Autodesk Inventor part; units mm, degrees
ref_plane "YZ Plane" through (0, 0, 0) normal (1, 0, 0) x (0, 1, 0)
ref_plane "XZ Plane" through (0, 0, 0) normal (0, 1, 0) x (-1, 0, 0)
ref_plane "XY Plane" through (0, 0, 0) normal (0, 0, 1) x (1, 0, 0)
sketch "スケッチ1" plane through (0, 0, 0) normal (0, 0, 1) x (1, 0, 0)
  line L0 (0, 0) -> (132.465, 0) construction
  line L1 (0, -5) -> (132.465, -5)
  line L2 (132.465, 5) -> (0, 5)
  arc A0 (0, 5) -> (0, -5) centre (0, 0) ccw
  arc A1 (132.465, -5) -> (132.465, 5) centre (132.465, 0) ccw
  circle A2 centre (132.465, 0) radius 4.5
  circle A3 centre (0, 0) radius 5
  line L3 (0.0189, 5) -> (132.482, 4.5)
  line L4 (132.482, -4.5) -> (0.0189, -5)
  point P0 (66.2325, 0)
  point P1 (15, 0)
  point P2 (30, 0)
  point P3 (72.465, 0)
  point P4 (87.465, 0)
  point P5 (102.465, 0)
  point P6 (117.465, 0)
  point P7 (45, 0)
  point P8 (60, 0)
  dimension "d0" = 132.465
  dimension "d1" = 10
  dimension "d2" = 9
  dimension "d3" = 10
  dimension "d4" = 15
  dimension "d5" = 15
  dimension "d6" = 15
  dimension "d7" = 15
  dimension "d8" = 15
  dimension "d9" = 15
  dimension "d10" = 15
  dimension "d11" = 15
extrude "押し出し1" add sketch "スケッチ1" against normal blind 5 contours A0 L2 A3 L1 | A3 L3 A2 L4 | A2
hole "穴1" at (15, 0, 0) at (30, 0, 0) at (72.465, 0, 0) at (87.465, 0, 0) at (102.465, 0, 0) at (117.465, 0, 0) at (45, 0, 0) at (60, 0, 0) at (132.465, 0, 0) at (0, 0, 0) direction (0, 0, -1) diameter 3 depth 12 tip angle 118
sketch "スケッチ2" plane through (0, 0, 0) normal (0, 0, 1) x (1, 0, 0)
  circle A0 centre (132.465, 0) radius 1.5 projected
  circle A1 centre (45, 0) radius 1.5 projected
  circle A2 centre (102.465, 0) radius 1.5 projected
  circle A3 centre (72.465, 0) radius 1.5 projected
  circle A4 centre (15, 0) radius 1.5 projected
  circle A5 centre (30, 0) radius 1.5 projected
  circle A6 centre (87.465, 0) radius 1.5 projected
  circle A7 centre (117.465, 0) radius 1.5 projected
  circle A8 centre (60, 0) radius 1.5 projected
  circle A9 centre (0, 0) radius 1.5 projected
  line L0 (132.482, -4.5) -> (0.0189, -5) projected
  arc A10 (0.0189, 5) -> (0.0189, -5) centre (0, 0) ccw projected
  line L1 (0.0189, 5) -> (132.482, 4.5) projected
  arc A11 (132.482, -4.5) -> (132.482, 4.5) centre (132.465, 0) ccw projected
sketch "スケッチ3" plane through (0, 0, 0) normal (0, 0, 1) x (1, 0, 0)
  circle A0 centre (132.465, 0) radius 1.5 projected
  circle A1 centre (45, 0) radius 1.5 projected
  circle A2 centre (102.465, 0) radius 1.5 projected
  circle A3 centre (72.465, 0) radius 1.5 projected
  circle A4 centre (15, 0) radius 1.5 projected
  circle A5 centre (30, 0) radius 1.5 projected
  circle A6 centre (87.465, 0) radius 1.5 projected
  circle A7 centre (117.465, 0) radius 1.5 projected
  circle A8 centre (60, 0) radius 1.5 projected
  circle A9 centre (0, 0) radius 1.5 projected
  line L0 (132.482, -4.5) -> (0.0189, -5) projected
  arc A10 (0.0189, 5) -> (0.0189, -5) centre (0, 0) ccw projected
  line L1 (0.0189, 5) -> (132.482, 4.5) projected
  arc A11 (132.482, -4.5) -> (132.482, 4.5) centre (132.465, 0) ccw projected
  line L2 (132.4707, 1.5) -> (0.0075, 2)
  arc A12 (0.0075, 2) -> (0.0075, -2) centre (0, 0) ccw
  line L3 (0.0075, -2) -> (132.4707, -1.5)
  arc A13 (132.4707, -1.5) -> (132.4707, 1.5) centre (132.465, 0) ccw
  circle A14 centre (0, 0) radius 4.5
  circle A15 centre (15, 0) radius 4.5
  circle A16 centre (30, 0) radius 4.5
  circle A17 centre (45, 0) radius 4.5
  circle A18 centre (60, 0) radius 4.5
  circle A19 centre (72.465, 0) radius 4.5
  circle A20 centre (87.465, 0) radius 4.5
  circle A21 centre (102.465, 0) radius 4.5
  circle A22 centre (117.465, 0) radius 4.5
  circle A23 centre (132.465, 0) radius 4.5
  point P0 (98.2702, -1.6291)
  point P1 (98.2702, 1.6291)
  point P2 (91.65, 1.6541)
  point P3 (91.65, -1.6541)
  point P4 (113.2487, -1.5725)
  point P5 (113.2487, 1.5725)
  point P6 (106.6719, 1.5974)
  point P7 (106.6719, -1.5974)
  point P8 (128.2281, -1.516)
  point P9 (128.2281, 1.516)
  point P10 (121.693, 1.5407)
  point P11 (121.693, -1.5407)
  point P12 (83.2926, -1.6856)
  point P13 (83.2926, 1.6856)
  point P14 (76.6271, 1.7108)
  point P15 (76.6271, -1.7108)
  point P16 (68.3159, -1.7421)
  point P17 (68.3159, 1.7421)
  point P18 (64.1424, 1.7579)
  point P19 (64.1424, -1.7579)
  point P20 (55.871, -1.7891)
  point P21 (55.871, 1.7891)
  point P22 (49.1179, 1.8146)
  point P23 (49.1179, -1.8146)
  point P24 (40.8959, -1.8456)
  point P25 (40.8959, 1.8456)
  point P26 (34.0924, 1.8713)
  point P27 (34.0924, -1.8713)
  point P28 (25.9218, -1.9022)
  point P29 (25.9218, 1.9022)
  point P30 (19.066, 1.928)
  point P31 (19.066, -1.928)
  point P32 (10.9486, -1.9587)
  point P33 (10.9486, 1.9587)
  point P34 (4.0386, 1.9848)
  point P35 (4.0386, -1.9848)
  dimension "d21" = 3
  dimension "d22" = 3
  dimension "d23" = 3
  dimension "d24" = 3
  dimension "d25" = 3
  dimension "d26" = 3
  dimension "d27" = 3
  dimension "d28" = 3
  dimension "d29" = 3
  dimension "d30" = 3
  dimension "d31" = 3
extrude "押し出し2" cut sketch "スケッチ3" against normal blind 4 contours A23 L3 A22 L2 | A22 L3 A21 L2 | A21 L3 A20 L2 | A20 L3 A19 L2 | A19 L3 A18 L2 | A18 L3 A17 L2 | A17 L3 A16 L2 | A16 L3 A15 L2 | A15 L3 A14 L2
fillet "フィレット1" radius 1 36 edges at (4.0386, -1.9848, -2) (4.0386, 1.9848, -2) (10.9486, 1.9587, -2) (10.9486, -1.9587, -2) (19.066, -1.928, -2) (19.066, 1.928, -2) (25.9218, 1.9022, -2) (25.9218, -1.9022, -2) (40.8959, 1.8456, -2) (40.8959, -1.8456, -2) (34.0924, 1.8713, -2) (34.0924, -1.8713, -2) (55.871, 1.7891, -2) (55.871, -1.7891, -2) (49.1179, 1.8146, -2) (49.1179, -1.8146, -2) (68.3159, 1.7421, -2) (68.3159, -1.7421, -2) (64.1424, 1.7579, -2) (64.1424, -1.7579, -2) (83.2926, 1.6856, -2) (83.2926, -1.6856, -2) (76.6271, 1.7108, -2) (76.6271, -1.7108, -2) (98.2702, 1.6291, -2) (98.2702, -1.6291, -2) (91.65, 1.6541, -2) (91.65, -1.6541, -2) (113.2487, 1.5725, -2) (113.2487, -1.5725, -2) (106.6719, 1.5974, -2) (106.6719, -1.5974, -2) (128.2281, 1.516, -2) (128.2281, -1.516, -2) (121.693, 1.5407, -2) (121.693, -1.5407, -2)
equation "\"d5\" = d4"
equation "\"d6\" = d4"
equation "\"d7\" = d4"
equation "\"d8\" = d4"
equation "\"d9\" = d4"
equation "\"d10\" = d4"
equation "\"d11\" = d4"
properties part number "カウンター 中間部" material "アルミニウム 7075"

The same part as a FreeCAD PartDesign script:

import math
import FreeCAD as App
import Part
import Sketcher
Q = App.Units.Quantity


def edges_at(feature, points):
    """Names of the edges that pass closest to the given points."""
    edges = feature.Shape.Edges
    near = lambda p: min(range(len(edges)), key=lambda i: edges[i].distToShape(Part.Vertex(*p))[0])
    return sorted({f"Edge{near(p) + 1}" for p in points})

doc = App.newDocument("Part")
body = doc.addObject("PartDesign::Body", "Body")

# Sketch on XY plane
sketch1 = doc.addObject("Sketcher::SketchObject", "Sketch")
body.addObject(sketch1)
sketch1.AttachmentSupport = (doc.XY_Plane, [""])
sketch1.MapMode = "FlatFace"
sketch1.addGeometry(Part.ArcOfCircle(Part.Circle(App.Vector(0, 0, 0), App.Vector(0, 0, 1), 5), math.radians(90), math.radians(270)), False)
sketch1.addGeometry(Part.LineSegment(App.Vector(0, -5, 0), App.Vector(0.019, -5, 0)), False)
sketch1.addGeometry(Part.LineSegment(App.Vector(0.019, -5, 0), App.Vector(132.482, -4.5, 0)), False)
sketch1.addGeometry(Part.ArcOfCircle(Part.Circle(App.Vector(132.465, 0, 0), App.Vector(0, 0, 1), 4.5), math.radians(-90), math.radians(90)), False)
sketch1.addGeometry(Part.LineSegment(App.Vector(132.482, 4.5, 0), App.Vector(0.019, 5, 0)), False)
sketch1.addGeometry(Part.LineSegment(App.Vector(0.019, 5, 0), App.Vector(0, 5, 0)), False)
sketch1.addConstraint(Sketcher.Constraint("Tangent", 0, 2, 1, 1))
sketch1.addConstraint(Sketcher.Constraint("Coincident", 1, 2, 2, 1))
sketch1.addConstraint(Sketcher.Constraint("Tangent", 2, 2, 3, 1))
sketch1.addConstraint(Sketcher.Constraint("Tangent", 3, 2, 4, 1))
sketch1.addConstraint(Sketcher.Constraint("Coincident", 4, 2, 5, 1))
sketch1.addConstraint(Sketcher.Constraint("Tangent", 5, 2, 0, 1))
sketch1.addConstraint(Sketcher.Constraint("Horizontal", 1))
sketch1.addConstraint(Sketcher.Constraint("Horizontal", 5))
sketch1.addConstraint(Sketcher.Constraint("Coincident", 0, 3, -1, 1))
sketch1.addConstraint(Sketcher.Constraint("Symmetric", 2, 2, 3, 2, -1))
sketch1.addConstraint(Sketcher.Constraint("Radius", 0, Q("5 mm")))
sketch1.addConstraint(Sketcher.Constraint("Radius", 3, Q("4.5 mm")))
sketch1.addConstraint(Sketcher.Constraint("DistanceX", -1, 1, 3, 3, Q("132.465 mm")))
sketch1.addConstraint(Sketcher.Constraint("DistanceX", 1, 1, 1, 2, Q("0.019 mm")))
pad1 = doc.addObject("PartDesign::Pad", "Pad")
body.addObject(pad1)
pad1.Profile = sketch1
pad1.Length = 5
pad1.Reversed = True

# Sketch on XY plane
sketch2 = doc.addObject("Sketcher::SketchObject", "Sketch001")
body.addObject(sketch2)
sketch2.AttachmentSupport = (doc.XY_Plane, [""])
sketch2.MapMode = "FlatFace"
sketch2.addGeometry(Part.Circle(App.Vector(15, 0, 0), App.Vector(0, 0, 1), 1.5), False)
sketch2.addGeometry(Part.Circle(App.Vector(30, 0, 0), App.Vector(0, 0, 1), 1.5), False)
sketch2.addGeometry(Part.Circle(App.Vector(72.5, 0, 0), App.Vector(0, 0, 1), 1.5), False)
sketch2.addGeometry(Part.Circle(App.Vector(87.5, 0, 0), App.Vector(0, 0, 1), 1.5), False)
sketch2.addGeometry(Part.Circle(App.Vector(102.5, 0, 0), App.Vector(0, 0, 1), 1.5), False)
sketch2.addGeometry(Part.Circle(App.Vector(117.5, 0, 0), App.Vector(0, 0, 1), 1.5), False)
sketch2.addGeometry(Part.Circle(App.Vector(45, 0, 0), App.Vector(0, 0, 1), 1.5), False)
sketch2.addGeometry(Part.Circle(App.Vector(60, 0, 0), App.Vector(0, 0, 1), 1.5), False)
sketch2.addGeometry(Part.Circle(App.Vector(132.5, 0, 0), App.Vector(0, 0, 1), 1.5), False)
sketch2.addGeometry(Part.Circle(App.Vector(0, 0, 0), App.Vector(0, 0, 1), 1.5), False)
sketch2.addConstraint(Sketcher.Constraint("Coincident", 9, 3, -1, 1))
sketch2.addConstraint(Sketcher.Constraint("Equal", 0, 1))
sketch2.addConstraint(Sketcher.Constraint("Equal", 1, 2))
sketch2.addConstraint(Sketcher.Constraint("Equal", 2, 3))
sketch2.addConstraint(Sketcher.Constraint("Equal", 3, 4))
sketch2.addConstraint(Sketcher.Constraint("Equal", 4, 5))
sketch2.addConstraint(Sketcher.Constraint("Equal", 5, 6))
sketch2.addConstraint(Sketcher.Constraint("Equal", 6, 7))
sketch2.addConstraint(Sketcher.Constraint("Equal", 7, 8))
sketch2.addConstraint(Sketcher.Constraint("Equal", 8, 9))
sketch2.addConstraint(Sketcher.Constraint("PointOnObject", 0, 3, -1))
sketch2.addConstraint(Sketcher.Constraint("PointOnObject", 1, 3, -1))
sketch2.addConstraint(Sketcher.Constraint("PointOnObject", 2, 3, -1))
sketch2.addConstraint(Sketcher.Constraint("PointOnObject", 3, 3, -1))
sketch2.addConstraint(Sketcher.Constraint("PointOnObject", 4, 3, -1))
sketch2.addConstraint(Sketcher.Constraint("PointOnObject", 5, 3, -1))
sketch2.addConstraint(Sketcher.Constraint("PointOnObject", 6, 3, -1))
sketch2.addConstraint(Sketcher.Constraint("PointOnObject", 7, 3, -1))
sketch2.addConstraint(Sketcher.Constraint("PointOnObject", 8, 3, -1))
sketch2.addConstraint(Sketcher.Constraint("Diameter", 0, Q("3 mm")))
sketch2.addConstraint(Sketcher.Constraint("DistanceX", -1, 1, 0, 3, Q("15 mm")))
sketch2.addConstraint(Sketcher.Constraint("DistanceX", -1, 1, 1, 3, Q("30 mm")))
sketch2.addConstraint(Sketcher.Constraint("DistanceX", -1, 1, 6, 3, Q("45 mm")))
sketch2.addConstraint(Sketcher.Constraint("DistanceX", -1, 1, 7, 3, Q("60 mm")))
sketch2.addConstraint(Sketcher.Constraint("DistanceX", 2, 3, 3, 3, Q("15 mm")))
sketch2.addConstraint(Sketcher.Constraint("DistanceX", 3, 3, 4, 3, Q("15 mm")))
sketch2.addConstraint(Sketcher.Constraint("DistanceX", 4, 3, 5, 3, Q("15 mm")))
sketch2.addConstraint(Sketcher.Constraint("DistanceX", 5, 3, 8, 3, Q("15 mm")))
sketch2.addConstraint(Sketcher.Constraint("DistanceX", -1, 1, 2, 3, Q("72.465 mm")))
doc.recompute()
hole = doc.addObject("PartDesign::Hole", "Hole")
body.addObject(hole)
hole.Profile = sketch2
hole.ThreadType = "None"
hole.Diameter = 3
hole.DepthType = "Dimension"
hole.Depth = 12
hole.DrillPoint = "Angled"
hole.DrillPointAngle = 118

# Sketch on XY plane
sketch3 = doc.addObject("Sketcher::SketchObject", "Sketch002")
body.addObject(sketch3)
sketch3.AttachmentSupport = (doc.XY_Plane, [""])
sketch3.MapMode = "FlatFace"
sketch3.addGeometry(Part.ArcOfCircle(Part.Circle(App.Vector(132.5, 0, 0), App.Vector(0, 0, 1), 4.5), math.radians(160), math.radians(200)), False)
sketch3.addGeometry(Part.LineSegment(App.Vector(128.2, 1.5, 0), App.Vector(121.7, 1.5, 0)), False)
sketch3.addGeometry(Part.ArcOfCircle(Part.Circle(App.Vector(117.5, 0, 0), App.Vector(0, 0, 1), 4.5), math.radians(-20), math.radians(20)), False)
sketch3.addGeometry(Part.LineSegment(App.Vector(121.7, -1.5, 0), App.Vector(128.2, -1.5, 0)), False)
sketch3.addGeometry(Part.ArcOfCircle(Part.Circle(App.Vector(117.5, 0, 0), App.Vector(0, 0, 1), 4.5), math.radians(160), math.radians(200)), False)
sketch3.addGeometry(Part.LineSegment(App.Vector(113.2, 1.6, 0), App.Vector(106.7, 1.6, 0)), False)
sketch3.addGeometry(Part.ArcOfCircle(Part.Circle(App.Vector(102.5, 0, 0), App.Vector(0, 0, 1), 4.5), math.radians(-21), math.radians(21)), False)
sketch3.addGeometry(Part.LineSegment(App.Vector(106.7, -1.6, 0), App.Vector(113.2, -1.6, 0)), False)
sketch3.addGeometry(Part.ArcOfCircle(Part.Circle(App.Vector(102.5, 0, 0), App.Vector(0, 0, 1), 4.5), math.radians(159), math.radians(201)), False)
sketch3.addGeometry(Part.LineSegment(App.Vector(98.3, 1.6, 0), App.Vector(91.6, 1.7, 0)), False)
sketch3.addGeometry(Part.ArcOfCircle(Part.Circle(App.Vector(87.5, 0, 0), App.Vector(0, 0, 1), 4.5), math.radians(-22), math.radians(22)), False)
sketch3.addGeometry(Part.LineSegment(App.Vector(91.6, -1.7, 0), App.Vector(98.3, -1.6, 0)), False)
sketch3.addGeometry(Part.ArcOfCircle(Part.Circle(App.Vector(87.5, 0, 0), App.Vector(0, 0, 1), 4.5), math.radians(158), math.radians(202)), False)
sketch3.addGeometry(Part.LineSegment(App.Vector(83.3, 1.7, 0), App.Vector(76.6, 1.7, 0)), False)
sketch3.addGeometry(Part.ArcOfCircle(Part.Circle(App.Vector(72.5, 0, 0), App.Vector(0, 0, 1), 4.5), math.radians(-22), math.radians(22)), False)
sketch3.addGeometry(Part.LineSegment(App.Vector(76.6, -1.7, 0), App.Vector(83.3, -1.7, 0)), False)
sketch3.addGeometry(Part.ArcOfCircle(Part.Circle(App.Vector(72.5, 0, 0), App.Vector(0, 0, 1), 4.5), math.radians(157), math.radians(203)), False)
sketch3.addGeometry(Part.LineSegment(App.Vector(68.3, 1.7, 0), App.Vector(64.1, 1.8, 0)), False)
sketch3.addGeometry(Part.ArcOfCircle(Part.Circle(App.Vector(60, 0, 0), App.Vector(0, 0, 1), 4.5), math.radians(-23), math.radians(23)), False)
sketch3.addGeometry(Part.LineSegment(App.Vector(64.1, -1.8, 0), App.Vector(68.3, -1.7, 0)), False)
sketch3.addGeometry(Part.ArcOfCircle(Part.Circle(App.Vector(60, 0, 0), App.Vector(0, 0, 1), 4.5), math.radians(157), math.radians(203)), False)
sketch3.addGeometry(Part.LineSegment(App.Vector(55.9, 1.8, 0), App.Vector(49.1, 1.8, 0)), False)
sketch3.addGeometry(Part.ArcOfCircle(Part.Circle(App.Vector(45, 0, 0), App.Vector(0, 0, 1), 4.5), math.radians(-24), math.radians(24)), False)
sketch3.addGeometry(Part.LineSegment(App.Vector(49.1, -1.8, 0), App.Vector(55.9, -1.8, 0)), False)
sketch3.addGeometry(Part.ArcOfCircle(Part.Circle(App.Vector(45, 0, 0), App.Vector(0, 0, 1), 4.5), math.radians(156), math.radians(204)), False)
sketch3.addGeometry(Part.LineSegment(App.Vector(40.9, 1.8, 0), App.Vector(34.1, 1.9, 0)), False)
sketch3.addGeometry(Part.ArcOfCircle(Part.Circle(App.Vector(30, 0, 0), App.Vector(0, 0, 1), 4.5), math.radians(-25), math.radians(25)), False)
sketch3.addGeometry(Part.LineSegment(App.Vector(34.1, -1.9, 0), App.Vector(40.9, -1.8, 0)), False)
sketch3.addGeometry(Part.ArcOfCircle(Part.Circle(App.Vector(30, 0, 0), App.Vector(0, 0, 1), 4.5), math.radians(155), math.radians(205)), False)
sketch3.addGeometry(Part.LineSegment(App.Vector(25.9, 1.9, 0), App.Vector(19.1, 1.9, 0)), False)
sketch3.addGeometry(Part.ArcOfCircle(Part.Circle(App.Vector(15, 0, 0), App.Vector(0, 0, 1), 4.5), math.radians(-25), math.radians(25)), False)
sketch3.addGeometry(Part.LineSegment(App.Vector(19.1, -1.9, 0), App.Vector(25.9, -1.9, 0)), False)
sketch3.addGeometry(Part.ArcOfCircle(Part.Circle(App.Vector(15, 0, 0), App.Vector(0, 0, 1), 4.5), math.radians(154), math.radians(206)), False)
sketch3.addGeometry(Part.LineSegment(App.Vector(10.9, 2, 0), App.Vector(4, 2, 0)), False)
sketch3.addGeometry(Part.ArcOfCircle(Part.Circle(App.Vector(0, 0, 0), App.Vector(0, 0, 1), 4.5), math.radians(-26), math.radians(26)), False)
sketch3.addGeometry(Part.LineSegment(App.Vector(4, -2, 0), App.Vector(10.9, -2, 0)), False)
sketch3.addConstraint(Sketcher.Constraint("Coincident", 0, 1, 1, 1))
sketch3.addConstraint(Sketcher.Constraint("Coincident", 1, 2, 2, 2))
sketch3.addConstraint(Sketcher.Constraint("Coincident", 2, 1, 3, 1))
sketch3.addConstraint(Sketcher.Constraint("Coincident", 3, 2, 0, 2))
sketch3.addConstraint(Sketcher.Constraint("Coincident", 4, 1, 5, 1))
sketch3.addConstraint(Sketcher.Constraint("Coincident", 5, 2, 6, 2))
sketch3.addConstraint(Sketcher.Constraint("Coincident", 6, 1, 7, 1))
sketch3.addConstraint(Sketcher.Constraint("Coincident", 7, 2, 4, 2))
sketch3.addConstraint(Sketcher.Constraint("Coincident", 8, 1, 9, 1))
sketch3.addConstraint(Sketcher.Constraint("Coincident", 9, 2, 10, 2))
sketch3.addConstraint(Sketcher.Constraint("Coincident", 10, 1, 11, 1))
sketch3.addConstraint(Sketcher.Constraint("Coincident", 11, 2, 8, 2))
sketch3.addConstraint(Sketcher.Constraint("Coincident", 12, 1, 13, 1))
sketch3.addConstraint(Sketcher.Constraint("Coincident", 13, 2, 14, 2))
sketch3.addConstraint(Sketcher.Constraint("Coincident", 14, 1, 15, 1))
sketch3.addConstraint(Sketcher.Constraint("Coincident", 15, 2, 12, 2))
sketch3.addConstraint(Sketcher.Constraint("Coincident", 16, 1, 17, 1))
sketch3.addConstraint(Sketcher.Constraint("Coincident", 17, 2, 18, 2))
sketch3.addConstraint(Sketcher.Constraint("Coincident", 18, 1, 19, 1))
sketch3.addConstraint(Sketcher.Constraint("Coincident", 19, 2, 16, 2))
sketch3.addConstraint(Sketcher.Constraint("Coincident", 20, 1, 21, 1))
sketch3.addConstraint(Sketcher.Constraint("Coincident", 21, 2, 22, 2))
sketch3.addConstraint(Sketcher.Constraint("Coincident", 22, 1, 23, 1))
sketch3.addConstraint(Sketcher.Constraint("Coincident", 23, 2, 20, 2))
sketch3.addConstraint(Sketcher.Constraint("Coincident", 24, 1, 25, 1))
sketch3.addConstraint(Sketcher.Constraint("Coincident", 25, 2, 26, 2))
sketch3.addConstraint(Sketcher.Constraint("Coincident", 26, 1, 27, 1))
sketch3.addConstraint(Sketcher.Constraint("Coincident", 27, 2, 24, 2))
sketch3.addConstraint(Sketcher.Constraint("Coincident", 28, 1, 29, 1))
sketch3.addConstraint(Sketcher.Constraint("Coincident", 29, 2, 30, 2))
sketch3.addConstraint(Sketcher.Constraint("Coincident", 30, 1, 31, 1))
sketch3.addConstraint(Sketcher.Constraint("Coincident", 31, 2, 28, 2))
sketch3.addConstraint(Sketcher.Constraint("Coincident", 32, 1, 33, 1))
sketch3.addConstraint(Sketcher.Constraint("Coincident", 33, 2, 34, 2))
sketch3.addConstraint(Sketcher.Constraint("Coincident", 34, 1, 35, 1))
sketch3.addConstraint(Sketcher.Constraint("Coincident", 35, 2, 32, 2))
sketch3.addConstraint(Sketcher.Constraint("Coincident", 34, 3, -1, 1))
sketch3.addConstraint(Sketcher.Constraint("Coincident", 4, 3, 2, 3))
sketch3.addConstraint(Sketcher.Constraint("Coincident", 8, 3, 6, 3))
sketch3.addConstraint(Sketcher.Constraint("Coincident", 12, 3, 10, 3))
sketch3.addConstraint(Sketcher.Constraint("Coincident", 16, 3, 14, 3))
sketch3.addConstraint(Sketcher.Constraint("Coincident", 20, 3, 18, 3))
sketch3.addConstraint(Sketcher.Constraint("Coincident", 24, 3, 22, 3))
sketch3.addConstraint(Sketcher.Constraint("Coincident", 28, 3, 26, 3))
sketch3.addConstraint(Sketcher.Constraint("Coincident", 32, 3, 30, 3))
sketch3.addConstraint(Sketcher.Constraint("Equal", 0, 2))
sketch3.addConstraint(Sketcher.Constraint("Equal", 2, 4))
sketch3.addConstraint(Sketcher.Constraint("Equal", 4, 6))
sketch3.addConstraint(Sketcher.Constraint("Equal", 6, 8))
sketch3.addConstraint(Sketcher.Constraint("Equal", 8, 10))
sketch3.addConstraint(Sketcher.Constraint("Equal", 10, 12))
sketch3.addConstraint(Sketcher.Constraint("Equal", 12, 14))
sketch3.addConstraint(Sketcher.Constraint("Equal", 14, 16))
sketch3.addConstraint(Sketcher.Constraint("Equal", 16, 18))
sketch3.addConstraint(Sketcher.Constraint("Equal", 18, 20))
sketch3.addConstraint(Sketcher.Constraint("Equal", 20, 22))
sketch3.addConstraint(Sketcher.Constraint("Equal", 22, 24))
sketch3.addConstraint(Sketcher.Constraint("Equal", 24, 26))
sketch3.addConstraint(Sketcher.Constraint("Equal", 26, 28))
sketch3.addConstraint(Sketcher.Constraint("Equal", 28, 30))
sketch3.addConstraint(Sketcher.Constraint("Equal", 30, 32))
sketch3.addConstraint(Sketcher.Constraint("Equal", 32, 34))
sketch3.addConstraint(Sketcher.Constraint("Symmetric", 1, 2, 2, 1, -1))
sketch3.addConstraint(Sketcher.Constraint("Symmetric", 0, 1, 3, 2, -1))
sketch3.addConstraint(Sketcher.Constraint("Symmetric", 5, 2, 6, 1, -1))
sketch3.addConstraint(Sketcher.Constraint("Symmetric", 9, 2, 10, 1, -1))
sketch3.addConstraint(Sketcher.Constraint("Symmetric", 13, 2, 14, 1, -1))
sketch3.addConstraint(Sketcher.Constraint("Symmetric", 17, 2, 18, 1, -1))
sketch3.addConstraint(Sketcher.Constraint("Symmetric", 21, 2, 22, 1, -1))
sketch3.addConstraint(Sketcher.Constraint("Symmetric", 25, 2, 26, 1, -1))
sketch3.addConstraint(Sketcher.Constraint("Symmetric", 29, 2, 30, 1, -1))
sketch3.addConstraint(Sketcher.Constraint("Parallel", 1, 5))
sketch3.addConstraint(Sketcher.Constraint("Parallel", 3, 7))
sketch3.addConstraint(Sketcher.Constraint("Parallel", 5, 9))
sketch3.addConstraint(Sketcher.Constraint("Parallel", 7, 11))
sketch3.addConstraint(Sketcher.Constraint("Parallel", 9, 13))
sketch3.addConstraint(Sketcher.Constraint("Parallel", 11, 15))
sketch3.addConstraint(Sketcher.Constraint("Parallel", 13, 17))
sketch3.addConstraint(Sketcher.Constraint("Parallel", 15, 19))
sketch3.addConstraint(Sketcher.Constraint("Parallel", 17, 21))
sketch3.addConstraint(Sketcher.Constraint("Parallel", 19, 23))
sketch3.addConstraint(Sketcher.Constraint("Parallel", 21, 25))
sketch3.addConstraint(Sketcher.Constraint("Parallel", 23, 27))
sketch3.addConstraint(Sketcher.Constraint("Parallel", 25, 29))
sketch3.addConstraint(Sketcher.Constraint("Parallel", 27, 31))
sketch3.addConstraint(Sketcher.Constraint("Parallel", 29, 33))
sketch3.addConstraint(Sketcher.Constraint("Parallel", 31, 35))
sketch3.addConstraint(Sketcher.Constraint("Vertical", 33, 2, 34, 1))
sketch3.addConstraint(Sketcher.Constraint("Radius", 0, Q("4.5 mm")))
sketch3.addConstraint(Sketcher.Constraint("DistanceX", -1, 1, 18, 3, Q("60 mm")))
sketch3.addConstraint(Sketcher.Constraint("DistanceX", -1, 1, 22, 3, Q("45 mm")))
sketch3.addConstraint(Sketcher.Constraint("DistanceX", -1, 1, 26, 3, Q("30 mm")))
sketch3.addConstraint(Sketcher.Constraint("DistanceX", -1, 1, 30, 3, Q("15 mm")))
sketch3.addConstraint(Sketcher.Constraint("DistanceX", 2, 3, 0, 3, Q("15 mm")))
sketch3.addConstraint(Sketcher.Constraint("DistanceX", 6, 3, 2, 3, Q("15 mm")))
sketch3.addConstraint(Sketcher.Constraint("DistanceX", 10, 3, 6, 3, Q("15 mm")))
sketch3.addConstraint(Sketcher.Constraint("DistanceX", 14, 3, 10, 3, Q("15 mm")))
sketch3.addConstraint(Sketcher.Constraint("DistanceY", 18, 1, 16, 1, Q("3.5 mm")))
sketch3.addConstraint(Sketcher.Constraint("Distance", 33, Q("6.91 mm")))
sketch3.addConstraint(Sketcher.Constraint("DistanceX", -1, 1, 9, 2, Q("91.65 mm")))
sketch3.addConstraint(Sketcher.Constraint("DistanceY", 6, 1, 4, 1, Q("3.17 mm")))
sketch3.addConstraint(Sketcher.Constraint("Distance", 1, Q("6.535 mm")))
sketch3.addConstraint(Sketcher.Constraint("Distance", 21, Q("6.753 mm")))
sketch3.addConstraint(Sketcher.Constraint("DistanceX", -1, 1, 0, 3, Q("132.465 mm")))
sketch3.addConstraint(Sketcher.Constraint("DistanceX", -1, 1, 0, 1, Q("128.228 mm")))
sketch3.addConstraint(Sketcher.Constraint("DistanceX", -1, 1, 13, 2, Q("76.627 mm")))
sketch3.addConstraint(Sketcher.Constraint("DistanceX", -1, 1, 24, 1, Q("40.896 mm")))
sketch3.addConstraint(Sketcher.Constraint("DistanceX", -1, 1, 29, 2, Q("19.066 mm")))
pocket1 = doc.addObject("PartDesign::Pocket", "Pocket")
body.addObject(pocket1)
pocket1.Profile = sketch3
pocket1.Length = 4
doc.recompute()

fillet = doc.addObject("PartDesign::Fillet", "Fillet")
body.addObject(fillet)
fillet.Base = (pocket1, edges_at(pocket1, [
    (4.039, -1.985, -2),
    (4.039, 1.985, -2),
    (10.949, 1.959, -2),
    (10.949, -1.959, -2),
    (19.066, -1.928, -2),
    (19.066, 1.928, -2),
    (25.922, 1.902, -2),
    (25.922, -1.902, -2),
    (40.896, 1.846, -2),
    (40.896, -1.846, -2),
    (34.092, 1.871, -2),
    (34.092, -1.871, -2),
    (55.871, 1.789, -2),
    (55.871, -1.789, -2),
    (49.118, 1.815, -2),
    (49.118, -1.815, -2),
    (68.316, 1.742, -2),
    (68.316, -1.742, -2),
    (64.142, 1.758, -2),
    (64.142, -1.758, -2),
    (83.293, 1.686, -2),
    (83.293, -1.686, -2),
    (76.627, 1.711, -2),
    (76.627, -1.711, -2),
    (98.27, 1.629, -2),
    (98.27, -1.629, -2),
    (91.65, 1.654, -2),
    (91.65, -1.654, -2),
    (113.249, 1.573, -2),
    (113.249, -1.573, -2),
    (106.672, 1.597, -2),
    (106.672, -1.597, -2),
    (128.228, 1.516, -2),
    (128.228, -1.516, -2),
    (121.693, 1.541, -2),
    (121.693, -1.541, -2),
]))
fillet.Radius = 1

doc.recompute()
